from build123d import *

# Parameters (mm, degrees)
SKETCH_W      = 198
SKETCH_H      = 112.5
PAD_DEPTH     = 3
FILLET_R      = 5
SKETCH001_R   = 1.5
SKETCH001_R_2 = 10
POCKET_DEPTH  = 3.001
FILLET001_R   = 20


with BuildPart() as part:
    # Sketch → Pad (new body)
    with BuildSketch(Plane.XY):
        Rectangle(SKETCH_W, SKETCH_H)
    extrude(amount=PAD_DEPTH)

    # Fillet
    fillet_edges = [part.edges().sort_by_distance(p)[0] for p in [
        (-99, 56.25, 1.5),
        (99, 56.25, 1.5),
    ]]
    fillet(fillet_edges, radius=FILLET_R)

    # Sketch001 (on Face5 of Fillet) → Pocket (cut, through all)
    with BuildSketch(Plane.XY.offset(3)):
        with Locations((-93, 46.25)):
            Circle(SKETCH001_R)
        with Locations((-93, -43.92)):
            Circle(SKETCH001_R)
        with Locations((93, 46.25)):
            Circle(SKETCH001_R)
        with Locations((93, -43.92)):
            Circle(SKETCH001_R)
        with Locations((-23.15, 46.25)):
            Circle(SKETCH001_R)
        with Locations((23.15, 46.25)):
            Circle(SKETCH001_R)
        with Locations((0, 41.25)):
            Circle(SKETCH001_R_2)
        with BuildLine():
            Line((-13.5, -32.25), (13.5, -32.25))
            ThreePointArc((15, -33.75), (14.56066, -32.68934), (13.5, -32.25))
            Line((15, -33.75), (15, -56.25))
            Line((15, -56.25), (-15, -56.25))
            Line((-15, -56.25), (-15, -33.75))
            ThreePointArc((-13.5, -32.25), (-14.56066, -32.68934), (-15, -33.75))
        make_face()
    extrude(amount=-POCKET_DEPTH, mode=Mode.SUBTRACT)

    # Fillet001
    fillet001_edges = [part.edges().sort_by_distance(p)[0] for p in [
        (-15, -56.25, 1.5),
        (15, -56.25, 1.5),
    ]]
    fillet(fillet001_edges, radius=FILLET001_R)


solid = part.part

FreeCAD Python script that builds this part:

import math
import FreeCAD as App
import Part
import Sketcher

V = App.Vector


def edges_at(feature, points):
    """Names of the edges that pass closest to the given points."""
    edges = feature.Shape.Edges
    near = lambda p: min(range(len(edges)), key=lambda i: edges[i].distToShape(Part.Vertex(*p))[0])
    return sorted({f"Edge{near(p) + 1}" for p in points})


def add_polygon(sketch, points):
    """Adds a closed chain of lines whose ends are joined by coincident constraints."""
    first, n = sketch.GeometryCount, len(points)
    for a, b in zip(points, points[1:] + points[:1]):
        sketch.addGeometry(Part.LineSegment(App.Vector(*a, 0), App.Vector(*b, 0)), False)
    for i in range(n):
        sketch.addConstraint(Sketcher.Constraint("Coincident", first + i, 2, first + (i + 1) % n, 1))

doc = App.newDocument("Part")
body = doc.addObject("PartDesign::Body", "Body")

# Sketch on XY plane
sketch1 = doc.addObject("Sketcher::SketchObject", "Sketch")
body.addObject(sketch1)
sketch1.AttachmentSupport = (doc.XY_Plane, [""])
sketch1.MapMode = "FlatFace"
add_polygon(sketch1, [(-99, 56), (-99, -56), (99, -56), (99, 56)])  # lines 0-3
sketch1.addConstraint([
    Sketcher.Constraint("Vertical", 0),
    Sketcher.Constraint("Horizontal", 1),
    Sketcher.Constraint("Vertical", 2),
    Sketcher.Constraint("Horizontal", 3),
    Sketcher.Constraint("Symmetric", 0, 2, 2, 2, -1, 1),
    Sketcher.Constraint("DistanceX", 1, 1, 1, 2, 198.0),
    Sketcher.Constraint("DistanceY", 0, 2, 0, 1, 112.5),
])
pad1 = doc.addObject("PartDesign::Pad", "Pad")
body.addObject(pad1)
pad1.Profile = sketch1
pad1.Length = 3
doc.recompute()

fillet = doc.addObject("PartDesign::Fillet", "Fillet")
body.addObject(fillet)
fillet.Base = (pad1, edges_at(pad1, [(-99, 56.25, 1.5), (99, 56.25, 1.5)]))
fillet.Radius = 5

# Sketch on XY plane
sketch2 = doc.addObject("Sketcher::SketchObject", "Sketch001")
body.addObject(sketch2)
sketch2.AttachmentSupport = (doc.XY_Plane, [""])
sketch2.MapMode = "FlatFace"
sketch2.AttachmentOffset = App.Placement(V(0, 0, 3), App.Rotation())
sketch2.addGeometry([
    Part.Circle(V(-93, 46.2, 0), V(0, 0, 1), 1.5),  # 0
    Part.Circle(V(-93, -43.9, 0), V(0, 0, 1), 1.5),  # 1
    Part.Circle(V(93, 46.2, 0), V(0, 0, 1), 1.5),  # 2
    Part.Circle(V(93, -43.9, 0), V(0, 0, 1), 1.5),  # 3
    Part.Circle(V(-23.1, 46.2, 0), V(0, 0, 1), 1.5),  # 4
    Part.Circle(V(23.1, 46.2, 0), V(0, 0, 1), 1.5),  # 5
    Part.Circle(V(0, 41.2, 0), V(0, 0, 1), 10),  # 6
    Part.LineSegment(V(13.5, -32.2, 0), V(-13.5, -32.2, 0)),  # 7
    Part.ArcOfCircle(Part.Circle(V(-13.5, -33.8, 0), V(0, 0, 1), 1.5), math.radians(90), math.radians(180)),  # 8
    Part.LineSegment(V(-15, -33.8, 0), V(-15, -56.2, 0)),  # 9
    Part.LineSegment(V(-15, -56.2, 0), V(15, -56.2, 0)),  # 10
    Part.LineSegment(V(15, -56.2, 0), V(15, -33.8, 0)),  # 11
    Part.ArcOfCircle(Part.Circle(V(13.5, -33.8, 0), V(0, 0, 1), 1.5), math.radians(0), math.radians(90)),  # 12
], False)
sketch2.addConstraint([
    Sketcher.Constraint("Tangent", 7, 2, 8, 1),
    Sketcher.Constraint("Tangent", 8, 2, 9, 1),
    Sketcher.Constraint("Coincident", 9, 2, 10, 1),
    Sketcher.Constraint("Coincident", 10, 2, 11, 1),
    Sketcher.Constraint("Tangent", 11, 2, 12, 1),
    Sketcher.Constraint("Tangent", 12, 2, 7, 1),
    Sketcher.Constraint("Horizontal", 7),
    Sketcher.Constraint("Vertical", 9),
    Sketcher.Constraint("Horizontal", 10),
    Sketcher.Constraint("Vertical", 11),
    Sketcher.Constraint("Equal", 0, 1),
    Sketcher.Constraint("Equal", 1, 2),
    Sketcher.Constraint("Equal", 2, 3),
    Sketcher.Constraint("Equal", 3, 4),
    Sketcher.Constraint("Equal", 4, 5),
    Sketcher.Constraint("Equal", 5, 8),
    Sketcher.Constraint("Equal", 8, 12),
    Sketcher.Constraint("Symmetric", 0, 3, 2, 3, -2),
    Sketcher.Constraint("Symmetric", 1, 3, 3, 3, -2),
    Sketcher.Constraint("Symmetric", 4, 3, 5, 3, -2),
    Sketcher.Constraint("PointOnObject", 6, 3, -2),
    Sketcher.Constraint("Horizontal", 2, 3, 4, 3),
    Sketcher.Constraint("Vertical", 0, 3, 1, 3),
    Sketcher.Constraint("Diameter", 0, 3.0),
    Sketcher.Constraint("Diameter", 6, 20.0),
    Sketcher.Constraint("DistanceX", 7, 2, 7, 1, 27.0),
    Sketcher.Constraint("DistanceY", 9, 2, 9, 1, 22.5),
    Sketcher.Constraint("DistanceX", 0, 3, -1, 1, 93.0),
    Sketcher.Constraint("DistanceX", 8, 2, -1, 1, 15.0),
    Sketcher.Constraint("DistanceY", 6, 3, 4, 3, 5.0),
    Sketcher.Constraint("DistanceY", 8, 3, 6, 3, 75.000001),
    Sketcher.Constraint("DistanceX", 4, 3, 5, 3, 46.3),
    Sketcher.Constraint("DistanceY", -1, 1, 0, 3, 46.25),
    Sketcher.Constraint("DistanceY", 1, 3, -1, 1, 43.92),
])
pocket1 = doc.addObject("PartDesign::Pocket", "Pocket")
body.addObject(pocket1)
pocket1.Profile = sketch2
pocket1.Type = "ThroughAll"
doc.recompute()

fillet2 = doc.addObject("PartDesign::Fillet", "Fillet001")
body.addObject(fillet2)
fillet2.Base = (pocket1, edges_at(pocket1, [(-15, -56.25, 1.5), (15, -56.25, 1.5)]))
fillet2.Radius = 20

doc.recompute()
